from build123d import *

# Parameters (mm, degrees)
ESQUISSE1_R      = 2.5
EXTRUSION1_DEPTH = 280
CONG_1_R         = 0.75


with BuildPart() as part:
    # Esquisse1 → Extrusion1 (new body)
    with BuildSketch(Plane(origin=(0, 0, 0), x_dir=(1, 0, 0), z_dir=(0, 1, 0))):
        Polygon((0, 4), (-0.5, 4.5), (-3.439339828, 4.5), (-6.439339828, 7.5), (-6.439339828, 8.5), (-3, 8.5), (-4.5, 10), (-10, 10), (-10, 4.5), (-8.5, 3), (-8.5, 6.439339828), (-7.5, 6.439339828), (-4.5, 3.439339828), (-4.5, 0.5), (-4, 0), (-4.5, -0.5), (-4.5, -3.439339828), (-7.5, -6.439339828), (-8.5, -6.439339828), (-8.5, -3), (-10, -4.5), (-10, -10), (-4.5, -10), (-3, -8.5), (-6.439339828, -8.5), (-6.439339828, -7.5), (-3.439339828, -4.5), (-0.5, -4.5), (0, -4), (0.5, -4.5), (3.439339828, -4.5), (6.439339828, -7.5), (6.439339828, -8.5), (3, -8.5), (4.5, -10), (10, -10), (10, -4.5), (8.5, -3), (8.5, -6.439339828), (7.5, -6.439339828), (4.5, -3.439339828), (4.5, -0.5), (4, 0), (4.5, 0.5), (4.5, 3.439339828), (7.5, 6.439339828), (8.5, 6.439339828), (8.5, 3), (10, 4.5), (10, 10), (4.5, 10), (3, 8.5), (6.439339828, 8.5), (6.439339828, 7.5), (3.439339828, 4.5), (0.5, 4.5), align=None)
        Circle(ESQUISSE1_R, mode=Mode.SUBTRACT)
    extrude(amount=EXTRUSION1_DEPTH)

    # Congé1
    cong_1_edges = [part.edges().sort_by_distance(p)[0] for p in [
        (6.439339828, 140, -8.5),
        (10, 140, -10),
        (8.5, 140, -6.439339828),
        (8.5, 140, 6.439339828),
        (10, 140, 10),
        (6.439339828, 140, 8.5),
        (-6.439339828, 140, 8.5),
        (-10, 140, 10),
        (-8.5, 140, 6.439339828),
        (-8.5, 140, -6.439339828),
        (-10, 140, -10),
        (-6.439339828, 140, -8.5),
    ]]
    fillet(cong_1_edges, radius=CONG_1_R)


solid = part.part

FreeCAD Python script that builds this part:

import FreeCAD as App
import Part
import Sketcher
Q = App.Units.Quantity


def edges_at(feature, points):
    """Names of the edges that pass closest to the given points."""
    edges = feature.Shape.Edges
    near = lambda p: min(range(len(edges)), key=lambda i: edges[i].distToShape(Part.Vertex(*p))[0])
    return sorted({f"Edge{near(p) + 1}" for p in points})

doc = App.newDocument("Part")
body = doc.addObject("PartDesign::Body", "Body")

sketch1 = body.newObject("Sketcher::SketchObject", "Sketch")
sketch1.AttachmentSupport = (doc.getObject("XZ_Plane"), [""])
sketch1.MapMode = "FlatFace"
sketch1.addGeometry([
    Part.LineSegment(App.Vector(0, -4, 0), App.Vector(-0.5, -4.5, 0)),
    Part.LineSegment(App.Vector(-0.5, -4.5, 0), App.Vector(-3.4, -4.5, 0)),
    Part.LineSegment(App.Vector(-3.4, -4.5, 0), App.Vector(-6.4, -7.5, 0)),
    Part.LineSegment(App.Vector(-6.4, -7.5, 0), App.Vector(-6.4, -8.5, 0)),
    Part.LineSegment(App.Vector(-6.4, -8.5, 0), App.Vector(-3, -8.5, 0)),
    Part.LineSegment(App.Vector(-3, -8.5, 0), App.Vector(-4.5, -10, 0)),
    Part.LineSegment(App.Vector(-4.5, -10, 0), App.Vector(-10, -10, 0)),
    Part.LineSegment(App.Vector(-10, -10, 0), App.Vector(-10, -4.5, 0)),
    Part.LineSegment(App.Vector(-10, -4.5, 0), App.Vector(-8.5, -3, 0)),
    Part.LineSegment(App.Vector(-8.5, -3, 0), App.Vector(-8.5, -6.4, 0)),
    Part.LineSegment(App.Vector(-8.5, -6.4, 0), App.Vector(-7.5, -6.4, 0)),
    Part.LineSegment(App.Vector(-7.5, -6.4, 0), App.Vector(-4.5, -3.4, 0)),
    Part.LineSegment(App.Vector(-4.5, -3.4, 0), App.Vector(-4.5, -0.5, 0)),
    Part.LineSegment(App.Vector(-4.5, -0.5, 0), App.Vector(-4, 0, 0)),
    Part.LineSegment(App.Vector(-4, 0, 0), App.Vector(-4.5, 0.5, 0)),
    Part.LineSegment(App.Vector(-4.5, 0.5, 0), App.Vector(-4.5, 3.4, 0)),
    Part.LineSegment(App.Vector(-4.5, 3.4, 0), App.Vector(-7.5, 6.4, 0)),
    Part.LineSegment(App.Vector(-7.5, 6.4, 0), App.Vector(-8.5, 6.4, 0)),
    Part.LineSegment(App.Vector(-8.5, 6.4, 0), App.Vector(-8.5, 3, 0)),
    Part.LineSegment(App.Vector(-8.5, 3, 0), App.Vector(-10, 4.5, 0)),
    Part.LineSegment(App.Vector(-10, 4.5, 0), App.Vector(-10, 10, 0)),
    Part.LineSegment(App.Vector(-10, 10, 0), App.Vector(-4.5, 10, 0)),
    Part.LineSegment(App.Vector(-4.5, 10, 0), App.Vector(-3, 8.5, 0)),
    Part.LineSegment(App.Vector(-3, 8.5, 0), App.Vector(-6.4, 8.5, 0)),
    Part.LineSegment(App.Vector(-6.4, 8.5, 0), App.Vector(-6.4, 7.5, 0)),
    Part.LineSegment(App.Vector(-6.4, 7.5, 0), App.Vector(-3.4, 4.5, 0)),
    Part.LineSegment(App.Vector(-3.4, 4.5, 0), App.Vector(-0.5, 4.5, 0)),
    Part.LineSegment(App.Vector(-0.5, 4.5, 0), App.Vector(0, 4, 0)),
    Part.LineSegment(App.Vector(0, 4, 0), App.Vector(0.5, 4.5, 0)),
    Part.LineSegment(App.Vector(0.5, 4.5, 0), App.Vector(3.4, 4.5, 0)),
    Part.LineSegment(App.Vector(3.4, 4.5, 0), App.Vector(6.4, 7.5, 0)),
    Part.LineSegment(App.Vector(6.4, 7.5, 0), App.Vector(6.4, 8.5, 0)),
    Part.LineSegment(App.Vector(6.4, 8.5, 0), App.Vector(3, 8.5, 0)),
    Part.LineSegment(App.Vector(3, 8.5, 0), App.Vector(4.5, 10, 0)),
    Part.LineSegment(App.Vector(4.5, 10, 0), App.Vector(10, 10, 0)),
    Part.LineSegment(App.Vector(10, 10, 0), App.Vector(10, 4.5, 0)),
    Part.LineSegment(App.Vector(10, 4.5, 0), App.Vector(8.5, 3, 0)),
    Part.LineSegment(App.Vector(8.5, 3, 0), App.Vector(8.5, 6.4, 0)),
    Part.LineSegment(App.Vector(8.5, 6.4, 0), App.Vector(7.5, 6.4, 0)),
    Part.LineSegment(App.Vector(7.5, 6.4, 0), App.Vector(4.5, 3.4, 0)),
    Part.LineSegment(App.Vector(4.5, 3.4, 0), App.Vector(4.5, 0.5, 0)),
    Part.LineSegment(App.Vector(4.5, 0.5, 0), App.Vector(4, 0, 0)),
    Part.LineSegment(App.Vector(4, 0, 0), App.Vector(4.5, -0.5, 0)),
    Part.LineSegment(App.Vector(4.5, -0.5, 0), App.Vector(4.5, -3.4, 0)),
    Part.LineSegment(App.Vector(4.5, -3.4, 0), App.Vector(7.5, -6.4, 0)),
    Part.LineSegment(App.Vector(7.5, -6.4, 0), App.Vector(8.5, -6.4, 0)),
    Part.LineSegment(App.Vector(8.5, -6.4, 0), App.Vector(8.5, -3, 0)),
    Part.LineSegment(App.Vector(8.5, -3, 0), App.Vector(10, -4.5, 0)),
    Part.LineSegment(App.Vector(10, -4.5, 0), App.Vector(10, -10, 0)),
    Part.LineSegment(App.Vector(10, -10, 0), App.Vector(4.5, -10, 0)),
    Part.LineSegment(App.Vector(4.5, -10, 0), App.Vector(3, -8.5, 0)),
    Part.LineSegment(App.Vector(3, -8.5, 0), App.Vector(6.4, -8.5, 0)),
    Part.LineSegment(App.Vector(6.4, -8.5, 0), App.Vector(6.4, -7.5, 0)),
    Part.LineSegment(App.Vector(6.4, -7.5, 0), App.Vector(3.4, -4.5, 0)),
    Part.LineSegment(App.Vector(3.4, -4.5, 0), App.Vector(0.5, -4.5, 0)),
    Part.LineSegment(App.Vector(0.5, -4.5, 0), App.Vector(0, -4, 0)),
    Part.Circle(App.Vector(0, 0, 0), App.Vector(0, 0, 1), 2.5),
], False)
sketch1.addConstraint([
    Sketcher.Constraint("Coincident", 0, 2, 1, 1),
    Sketcher.Constraint("Coincident", 1, 2, 2, 1),
    Sketcher.Constraint("Coincident", 2, 2, 3, 1),
    Sketcher.Constraint("Coincident", 3, 2, 4, 1),
    Sketcher.Constraint("Coincident", 4, 2, 5, 1),
    Sketcher.Constraint("Coincident", 5, 2, 6, 1),
    Sketcher.Constraint("Coincident", 6, 2, 7, 1),
    Sketcher.Constraint("Coincident", 7, 2, 8, 1),
    Sketcher.Constraint("Coincident", 8, 2, 9, 1),
    Sketcher.Constraint("Coincident", 9, 2, 10, 1),
    Sketcher.Constraint("Coincident", 10, 2, 11, 1),
    Sketcher.Constraint("Coincident", 11, 2, 12, 1),
    Sketcher.Constraint("Coincident", 12, 2, 13, 1),
    Sketcher.Constraint("Coincident", 13, 2, 14, 1),
    Sketcher.Constraint("Coincident", 14, 2, 15, 1),
    Sketcher.Constraint("Coincident", 15, 2, 16, 1),
    Sketcher.Constraint("Coincident", 16, 2, 17, 1),
    Sketcher.Constraint("Coincident", 17, 2, 18, 1),
    Sketcher.Constraint("Coincident", 18, 2, 19, 1),
    Sketcher.Constraint("Coincident", 19, 2, 20, 1),
    Sketcher.Constraint("Coincident", 20, 2, 21, 1),
    Sketcher.Constraint("Coincident", 21, 2, 22, 1),
    Sketcher.Constraint("Coincident", 22, 2, 23, 1),
    Sketcher.Constraint("Coincident", 23, 2, 24, 1),
    Sketcher.Constraint("Coincident", 24, 2, 25, 1),
    Sketcher.Constraint("Coincident", 25, 2, 26, 1),
    Sketcher.Constraint("Coincident", 26, 2, 27, 1),
    Sketcher.Constraint("Coincident", 27, 2, 28, 1),
    Sketcher.Constraint("Coincident", 28, 2, 29, 1),
    Sketcher.Constraint("Coincident", 29, 2, 30, 1),
    Sketcher.Constraint("Coincident", 30, 2, 31, 1),
    Sketcher.Constraint("Coincident", 31, 2, 32, 1),
    Sketcher.Constraint("Coincident", 32, 2, 33, 1),
    Sketcher.Constraint("Coincident", 33, 2, 34, 1),
    Sketcher.Constraint("Coincident", 34, 2, 35, 1),
    Sketcher.Constraint("Coincident", 35, 2, 36, 1),
    Sketcher.Constraint("Coincident", 36, 2, 37, 1),
    Sketcher.Constraint("Coincident", 37, 2, 38, 1),
    Sketcher.Constraint("Coincident", 38, 2, 39, 1),
    Sketcher.Constraint("Coincident", 39, 2, 40, 1),
    Sketcher.Constraint("Coincident", 40, 2, 41, 1),
    Sketcher.Constraint("Coincident", 41, 2, 42, 1),
    Sketcher.Constraint("Coincident", 42, 2, 43, 1),
    Sketcher.Constraint("Coincident", 43, 2, 44, 1),
    Sketcher.Constraint("Coincident", 44, 2, 45, 1),
    Sketcher.Constraint("Coincident", 45, 2, 46, 1),
    Sketcher.Constraint("Coincident", 46, 2, 47, 1),
    Sketcher.Constraint("Coincident", 47, 2, 48, 1),
    Sketcher.Constraint("Coincident", 48, 2, 49, 1),
    Sketcher.Constraint("Coincident", 49, 2, 50, 1),
    Sketcher.Constraint("Coincident", 50, 2, 51, 1),
    Sketcher.Constraint("Coincident", 51, 2, 52, 1),
    Sketcher.Constraint("Coincident", 52, 2, 53, 1),
    Sketcher.Constraint("Coincident", 53, 2, 54, 1),
    Sketcher.Constraint("Coincident", 54, 2, 55, 1),
    Sketcher.Constraint("Coincident", 55, 2, 0, 1),
    Sketcher.Constraint("Horizontal", 1),
    Sketcher.Constraint("Vertical", 3),
    Sketcher.Constraint("Horizontal", 4),
    Sketcher.Constraint("Horizontal", 6),
    Sketcher.Constraint("Vertical", 7),
    Sketcher.Constraint("Vertical", 9),
    Sketcher.Constraint("Horizontal", 10),
    Sketcher.Constraint("Vertical", 12),
    Sketcher.Constraint("Vertical", 15),
    Sketcher.Constraint("Horizontal", 17),
    Sketcher.Constraint("Vertical", 18),
    Sketcher.Constraint("Vertical", 20),
    Sketcher.Constraint("Horizontal", 21),
    Sketcher.Constraint("Horizontal", 23),
    Sketcher.Constraint("Vertical", 24),
    Sketcher.Constraint("Horizontal", 26),
    Sketcher.Constraint("Horizontal", 29),
    Sketcher.Constraint("Vertical", 31),
    Sketcher.Constraint("Horizontal", 32),
    Sketcher.Constraint("Horizontal", 34),
    Sketcher.Constraint("Vertical", 35),
    Sketcher.Constraint("Vertical", 37),
    Sketcher.Constraint("Horizontal", 38),
    Sketcher.Constraint("Vertical", 40),
    Sketcher.Constraint("Vertical", 43),
    Sketcher.Constraint("Horizontal", 45),
    Sketcher.Constraint("Vertical", 46),
    Sketcher.Constraint("Vertical", 48),
    Sketcher.Constraint("Horizontal", 49),
    Sketcher.Constraint("Horizontal", 51),
    Sketcher.Constraint("Vertical", 52),
    Sketcher.Constraint("Horizontal", 54),
    Sketcher.Constraint("Coincident", 56, 3, -1, 1),
    Sketcher.Constraint("Symmetric", 0, 2, 28, 2, -1, 1),
    Sketcher.Constraint("Symmetric", 2, 2, 30, 2, -1, 1),
    Sketcher.Constraint("Symmetric", 4, 2, 32, 2, -1, 1),
    Sketcher.Constraint("Symmetric", 5, 2, 33, 2, -1, 1),
    Sketcher.Constraint("Symmetric", 7, 2, 35, 2, -1, 1),
    Sketcher.Constraint("Symmetric", 8, 2, 36, 2, -1, 1),
    Sketcher.Constraint("Symmetric", 10, 2, 38, 2, -1, 1),
    Sketcher.Constraint("Symmetric", 11, 2, 39, 2, -1, 1),
    Sketcher.Constraint("Symmetric", 13, 2, 41, 2, -1, 1),
    Sketcher.Constraint("Symmetric", 14, 2, 42, 2, -1, 1),
    Sketcher.Constraint("Symmetric", 16, 2, 44, 2, -1, 1),
    Sketcher.Constraint("Symmetric", 18, 2, 46, 2, -1, 1),
    Sketcher.Constraint("Symmetric", 19, 2, 47, 2, -1, 1),
    Sketcher.Constraint("Symmetric", 21, 2, 49, 2, -1, 1),
    Sketcher.Constraint("Symmetric", 22, 2, 50, 2, -1, 1),
    Sketcher.Constraint("Symmetric", 24, 2, 52, 2, -1, 1),
    Sketcher.Constraint("Symmetric", 25, 2, 53, 2, -1, 1),
    Sketcher.Constraint("Symmetric", 27, 2, 55, 2, -1, 1),
    Sketcher.Constraint("Symmetric", 26, 2, 28, 2, -2),
    Sketcher.Constraint("Symmetric", 24, 2, 30, 2, -2),
    Sketcher.Constraint("Symmetric", 22, 2, 32, 2, -2),
    Sketcher.Constraint("Symmetric", 21, 2, 33, 2, -2),
    Sketcher.Constraint("Symmetric", 19, 2, 35, 2, -2),
    Sketcher.Constraint("Symmetric", 18, 2, 36, 2, -2),
    Sketcher.Constraint("Symmetric", 16, 2, 38, 2, -2),
    Sketcher.Constraint("Symmetric", 15, 2, 39, 2, -2),
    Sketcher.Constraint("PointOnObject", 13, 2, -1),
    Sketcher.Constraint("PointOnObject", 27, 2, -2),
    Sketcher.Constraint("Parallel", 0, 2),
    Sketcher.Constraint("Parallel", 2, 5),
    Sketcher.Constraint("Parallel", 5, 8),
    Sketcher.Constraint("Parallel", 8, 11),
    Sketcher.Constraint("Parallel", 11, 13),
    Sketcher.Constraint("Perpendicular", 13, 14),
    Sketcher.Constraint("Parallel", 14, 16),
    Sketcher.Constraint("Parallel", 22, 25),
    Sketcher.Constraint("Parallel", 28, 30),
    Sketcher.Constraint("Parallel", 39, 41),
    Sketcher.Constraint("Parallel", 42, 44),
    Sketcher.Constraint("Parallel", 53, 55),
    Sketcher.Constraint("Horizontal", 1, 2, 7, 2),
    Sketcher.Constraint("Vertical", 5, 2, 11, 2),
    Sketcher.Constraint("Equal", 45, 3),
    Sketcher.Constraint("Equal", 49, 7),
    Sketcher.Constraint("Equal", 51, 9),
    Sketcher.Constraint("Equal", 54, 12),
    Sketcher.Constraint("Equal", 5, 8),
    Sketcher.Constraint("Equal", 0, 13),
    Sketcher.Constraint("Diameter", 56, Q("5 mm")),
    Sketcher.Constraint("DistanceX", 10, 1, 10, 2, Q("1 mm")),
    Sketcher.Constraint("DistanceX", 6, 2, 6, 1, Q("5.5 mm")),
    Sketcher.Constraint("DistanceX", 4, 2, -1, 1, Q("3 mm")),
    Sketcher.Constraint("DistanceY", 5, 2, -1, 1, Q("10 mm")),
    Sketcher.Constraint("DistanceX", 13, 2, -1, 1, Q("4 mm")),
    Sketcher.Constraint("DistanceX", 1, 2, 1, 1, Q("2.93934 mm")),
])
pad1 = body.newObject("PartDesign::Pad", "Pad")
pad1.Profile = sketch1
pad1.Length = 280
pad1.Reversed = True
doc.recompute()

fillet = body.newObject("PartDesign::Fillet", "Fillet")
fillet.Base = (pad1, edges_at(pad1, [
    (6.439, 140, -8.5),
    (10, 140, -10),
    (8.5, 140, -6.439),
    (8.5, 140, 6.439),
    (10, 140, 10),
    (6.439, 140, 8.5),
    (-6.439, 140, 8.5),
    (-10, 140, 10),
    (-8.5, 140, 6.439),
    (-8.5, 140, -6.439),
    (-10, 140, -10),
    (-6.439, 140, -8.5),
]))
fillet.Radius = 0.75

doc.recompute()
